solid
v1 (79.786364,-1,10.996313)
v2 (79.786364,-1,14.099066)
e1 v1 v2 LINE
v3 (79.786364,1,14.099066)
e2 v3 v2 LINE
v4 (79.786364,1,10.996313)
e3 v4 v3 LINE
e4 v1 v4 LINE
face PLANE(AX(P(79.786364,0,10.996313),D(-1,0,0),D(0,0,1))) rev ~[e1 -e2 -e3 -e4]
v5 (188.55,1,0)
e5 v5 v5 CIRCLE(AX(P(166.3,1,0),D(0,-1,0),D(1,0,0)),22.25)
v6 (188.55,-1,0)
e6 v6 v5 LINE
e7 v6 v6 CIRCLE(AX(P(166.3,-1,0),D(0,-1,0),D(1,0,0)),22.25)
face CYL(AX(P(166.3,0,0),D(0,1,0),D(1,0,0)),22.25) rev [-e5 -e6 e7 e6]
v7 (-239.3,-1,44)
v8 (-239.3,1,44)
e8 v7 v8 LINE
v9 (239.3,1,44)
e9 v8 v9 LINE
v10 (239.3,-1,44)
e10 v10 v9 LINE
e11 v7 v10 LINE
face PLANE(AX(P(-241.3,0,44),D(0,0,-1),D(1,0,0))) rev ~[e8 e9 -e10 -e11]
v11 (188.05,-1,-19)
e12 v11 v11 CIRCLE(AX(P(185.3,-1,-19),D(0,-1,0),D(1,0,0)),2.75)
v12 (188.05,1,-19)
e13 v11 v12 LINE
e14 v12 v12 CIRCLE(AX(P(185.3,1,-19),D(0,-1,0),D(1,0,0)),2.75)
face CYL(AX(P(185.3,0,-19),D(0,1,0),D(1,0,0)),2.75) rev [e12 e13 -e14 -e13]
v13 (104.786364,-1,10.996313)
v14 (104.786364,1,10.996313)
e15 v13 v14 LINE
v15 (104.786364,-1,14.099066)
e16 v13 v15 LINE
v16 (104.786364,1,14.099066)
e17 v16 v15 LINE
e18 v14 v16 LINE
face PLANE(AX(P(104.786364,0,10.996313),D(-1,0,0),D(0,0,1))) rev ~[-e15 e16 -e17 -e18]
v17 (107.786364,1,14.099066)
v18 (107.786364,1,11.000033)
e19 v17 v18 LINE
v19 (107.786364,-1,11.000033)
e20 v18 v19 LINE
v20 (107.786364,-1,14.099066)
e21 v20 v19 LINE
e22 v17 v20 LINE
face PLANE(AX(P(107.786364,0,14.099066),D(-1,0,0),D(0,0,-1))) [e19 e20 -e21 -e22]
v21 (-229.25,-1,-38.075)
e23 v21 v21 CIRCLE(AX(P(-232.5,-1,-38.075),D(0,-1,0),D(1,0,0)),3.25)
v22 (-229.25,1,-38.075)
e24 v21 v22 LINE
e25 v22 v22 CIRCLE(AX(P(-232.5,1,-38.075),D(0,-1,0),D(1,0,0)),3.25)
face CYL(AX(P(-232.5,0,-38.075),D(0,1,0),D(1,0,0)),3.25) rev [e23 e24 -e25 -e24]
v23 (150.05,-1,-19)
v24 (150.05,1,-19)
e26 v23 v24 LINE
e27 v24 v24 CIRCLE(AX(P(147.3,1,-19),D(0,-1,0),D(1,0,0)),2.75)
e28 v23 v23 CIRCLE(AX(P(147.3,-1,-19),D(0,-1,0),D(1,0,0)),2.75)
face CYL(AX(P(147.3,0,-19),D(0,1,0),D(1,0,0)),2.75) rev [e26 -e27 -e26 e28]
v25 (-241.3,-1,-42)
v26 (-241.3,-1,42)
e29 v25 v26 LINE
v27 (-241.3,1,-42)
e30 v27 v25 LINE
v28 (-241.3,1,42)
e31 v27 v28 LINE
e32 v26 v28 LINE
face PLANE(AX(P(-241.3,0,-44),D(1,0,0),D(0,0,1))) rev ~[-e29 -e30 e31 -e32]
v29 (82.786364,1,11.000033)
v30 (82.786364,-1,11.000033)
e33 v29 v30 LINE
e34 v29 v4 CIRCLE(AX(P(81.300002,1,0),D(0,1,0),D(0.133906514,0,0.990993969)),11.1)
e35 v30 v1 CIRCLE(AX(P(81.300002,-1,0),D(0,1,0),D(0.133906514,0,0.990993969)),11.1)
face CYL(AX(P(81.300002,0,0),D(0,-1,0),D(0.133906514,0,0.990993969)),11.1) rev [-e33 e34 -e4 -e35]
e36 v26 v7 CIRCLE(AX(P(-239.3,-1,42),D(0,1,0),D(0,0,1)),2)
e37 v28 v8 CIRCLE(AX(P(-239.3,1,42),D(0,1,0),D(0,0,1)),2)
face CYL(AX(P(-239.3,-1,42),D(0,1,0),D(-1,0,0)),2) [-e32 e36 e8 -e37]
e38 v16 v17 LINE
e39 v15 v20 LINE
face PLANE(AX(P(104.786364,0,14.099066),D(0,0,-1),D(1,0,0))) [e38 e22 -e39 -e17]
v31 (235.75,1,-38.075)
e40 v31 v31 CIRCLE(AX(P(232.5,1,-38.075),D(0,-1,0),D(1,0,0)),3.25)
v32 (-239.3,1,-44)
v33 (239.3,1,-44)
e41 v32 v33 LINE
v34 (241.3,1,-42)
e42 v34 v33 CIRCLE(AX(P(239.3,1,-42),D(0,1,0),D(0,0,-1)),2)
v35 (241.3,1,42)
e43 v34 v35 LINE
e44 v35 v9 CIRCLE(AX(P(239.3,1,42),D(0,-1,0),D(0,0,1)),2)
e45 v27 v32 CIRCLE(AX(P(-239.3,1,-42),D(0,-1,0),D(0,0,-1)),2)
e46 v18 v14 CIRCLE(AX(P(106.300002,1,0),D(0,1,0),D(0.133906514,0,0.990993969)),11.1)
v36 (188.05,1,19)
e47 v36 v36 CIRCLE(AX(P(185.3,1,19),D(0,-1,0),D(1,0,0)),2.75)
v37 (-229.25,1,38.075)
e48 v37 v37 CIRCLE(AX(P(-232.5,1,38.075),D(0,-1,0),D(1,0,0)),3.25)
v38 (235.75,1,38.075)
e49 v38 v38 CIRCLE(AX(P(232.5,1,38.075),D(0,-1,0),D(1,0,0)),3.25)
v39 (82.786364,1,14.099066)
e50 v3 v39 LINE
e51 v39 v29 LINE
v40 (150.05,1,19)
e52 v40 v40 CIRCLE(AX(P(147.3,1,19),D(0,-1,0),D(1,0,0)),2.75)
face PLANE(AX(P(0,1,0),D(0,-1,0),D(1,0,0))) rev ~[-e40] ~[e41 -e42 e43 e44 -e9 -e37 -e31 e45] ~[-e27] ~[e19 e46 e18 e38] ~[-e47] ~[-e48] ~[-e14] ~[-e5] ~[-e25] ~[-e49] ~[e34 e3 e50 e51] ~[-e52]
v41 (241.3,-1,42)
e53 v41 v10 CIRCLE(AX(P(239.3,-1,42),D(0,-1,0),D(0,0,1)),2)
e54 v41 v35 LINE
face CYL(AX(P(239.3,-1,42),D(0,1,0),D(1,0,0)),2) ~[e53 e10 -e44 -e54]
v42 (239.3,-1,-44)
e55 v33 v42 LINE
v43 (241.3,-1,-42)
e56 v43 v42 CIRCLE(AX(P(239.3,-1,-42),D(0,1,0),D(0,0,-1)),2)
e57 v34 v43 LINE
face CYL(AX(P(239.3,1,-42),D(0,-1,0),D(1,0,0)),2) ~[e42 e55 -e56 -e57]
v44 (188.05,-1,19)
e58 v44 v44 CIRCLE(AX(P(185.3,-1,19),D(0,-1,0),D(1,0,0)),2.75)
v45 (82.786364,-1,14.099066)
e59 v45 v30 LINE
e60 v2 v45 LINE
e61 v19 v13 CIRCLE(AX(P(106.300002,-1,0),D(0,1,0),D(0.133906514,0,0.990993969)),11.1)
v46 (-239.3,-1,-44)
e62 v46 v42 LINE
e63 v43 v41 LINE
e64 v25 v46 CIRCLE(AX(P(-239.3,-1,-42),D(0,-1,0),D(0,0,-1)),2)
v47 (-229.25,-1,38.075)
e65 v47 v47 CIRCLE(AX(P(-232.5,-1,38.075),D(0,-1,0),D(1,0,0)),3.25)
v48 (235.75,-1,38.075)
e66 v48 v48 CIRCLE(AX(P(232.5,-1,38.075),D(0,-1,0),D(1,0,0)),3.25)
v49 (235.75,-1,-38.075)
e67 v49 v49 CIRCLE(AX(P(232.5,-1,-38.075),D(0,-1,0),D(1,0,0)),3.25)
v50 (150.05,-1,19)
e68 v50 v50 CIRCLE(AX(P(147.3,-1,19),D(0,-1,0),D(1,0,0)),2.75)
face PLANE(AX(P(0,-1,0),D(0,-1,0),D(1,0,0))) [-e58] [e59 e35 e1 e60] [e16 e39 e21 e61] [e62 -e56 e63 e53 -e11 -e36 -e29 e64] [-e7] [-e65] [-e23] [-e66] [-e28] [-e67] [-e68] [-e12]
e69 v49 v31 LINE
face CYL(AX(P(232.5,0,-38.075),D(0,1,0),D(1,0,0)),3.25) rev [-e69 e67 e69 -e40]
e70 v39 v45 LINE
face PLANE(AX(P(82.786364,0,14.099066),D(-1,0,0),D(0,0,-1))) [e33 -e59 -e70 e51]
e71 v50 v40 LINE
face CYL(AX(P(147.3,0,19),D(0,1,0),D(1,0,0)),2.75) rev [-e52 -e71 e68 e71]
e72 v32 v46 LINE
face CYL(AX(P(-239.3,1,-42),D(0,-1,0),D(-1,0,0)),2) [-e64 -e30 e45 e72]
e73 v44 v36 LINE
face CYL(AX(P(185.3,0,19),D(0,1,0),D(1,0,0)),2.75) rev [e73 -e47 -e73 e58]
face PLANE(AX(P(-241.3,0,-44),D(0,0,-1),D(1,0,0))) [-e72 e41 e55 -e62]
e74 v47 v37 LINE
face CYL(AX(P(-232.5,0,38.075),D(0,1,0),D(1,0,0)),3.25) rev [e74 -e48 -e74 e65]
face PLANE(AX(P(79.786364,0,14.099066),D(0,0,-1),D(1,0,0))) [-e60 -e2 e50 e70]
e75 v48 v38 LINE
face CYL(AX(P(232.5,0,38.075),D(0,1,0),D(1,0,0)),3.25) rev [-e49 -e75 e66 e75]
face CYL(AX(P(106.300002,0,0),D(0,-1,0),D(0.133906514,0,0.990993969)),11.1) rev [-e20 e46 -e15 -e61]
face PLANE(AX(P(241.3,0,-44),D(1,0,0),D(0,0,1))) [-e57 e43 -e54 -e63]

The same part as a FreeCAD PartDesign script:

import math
import FreeCAD as App
import Part
import Sketcher

V = App.Vector


def edges_at(feature, points):
    """Names of the edges that pass closest to the given points."""
    edges = feature.Shape.Edges
    near = lambda p: min(range(len(edges)), key=lambda i: edges[i].distToShape(Part.Vertex(*p))[0])
    return sorted({f"Edge{near(p) + 1}" for p in points})


def add_polygon(sketch, points):
    """Adds a closed chain of lines whose ends are joined by coincident constraints."""
    first, n = sketch.GeometryCount, len(points)
    for a, b in zip(points, points[1:] + points[:1]):
        sketch.addGeometry(Part.LineSegment(App.Vector(*a, 0), App.Vector(*b, 0)), False)
    for i in range(n):
        sketch.addConstraint(Sketcher.Constraint("Coincident", first + i, 2, first + (i + 1) % n, 1))

doc = App.newDocument("Part")
params = doc.addObject("Spreadsheet::Sheet", "Params")
for row, (alias, value) in enumerate([
    ("sketch1_diameter", "6.5 mm"),
    ("sketch1_diameter2", "5.5 mm"),
    ("sketch1_diameter3", "44.5 mm"),
    ("sketch1_radius", "11.1 mm"),
    ("sketch1_width", "3 mm"),
    ("pad1_length", "2 mm"),
    ("fillet_radius", "2 mm"),
], start=1):
    params.set(f"A{row}", alias)
    params.set(f"B{row}", "=" + value)
    params.setAlias(f"B{row}", alias)

body = doc.addObject("PartDesign::Body", "Body")

# Sketch on XZ plane
sketch1 = doc.addObject("Sketcher::SketchObject", "Sketch")
body.addObject(sketch1)
sketch1.AttachmentSupport = (doc.XZ_Plane, [""])
sketch1.MapMode = "FlatFace"
add_polygon(sketch1, [(-241.3, 44), (-241.3, -44), (241.3, -44), (241.3, 44)])  # lines 0-3
sketch1.addGeometry(Part.Circle(V(-232.5, -38.1, 0), V(0, 0, 1), 3.2), False)  # 4
sketch1.addGeometry(Part.Circle(V(232.5, -38.1, 0), V(0, 0, 1), 3.2), False)  # 5
sketch1.addGeometry(Part.Circle(V(147.3, -19, 0), V(0, 0, 1), 2.8), False)  # 6
sketch1.addGeometry(Part.Circle(V(185.3, -19, 0), V(0, 0, 1), 2.8), False)  # 7
sketch1.addGeometry(Part.Circle(V(166.3, 0, 0), V(0, 0, 1), 22.2), False)  # 8
sketch1.addGeometry(Part.Circle(V(-232.5, 38.1, 0), V(0, 0, 1), 3.2), False)  # 9
sketch1.addGeometry(Part.LineSegment(V(82.8, 14.1, 0), V(82.8, 11, 0)), False)  # 10
sketch1.addGeometry(Part.ArcOfCircle(Part.Circle(V(81.3, 0, 0), V(0, 0, 1), 11.1), math.radians(98), math.radians(442)), False)  # 11
sketch1.addGeometry(Part.LineSegment(V(79.8, 11, 0), V(79.8, 14.1, 0)), False)  # 12
sketch1.addGeometry(Part.LineSegment(V(79.8, 14.1, 0), V(82.8, 14.1, 0)), False)  # 13
sketch1.addGeometry(Part.LineSegment(V(107.8, 14.1, 0), V(107.8, 11, 0)), False)  # 14
sketch1.addGeometry(Part.ArcOfCircle(Part.Circle(V(106.3, 0, 0), V(0, 0, 1), 11.1), math.radians(98), math.radians(442)), False)  # 15
sketch1.addGeometry(Part.LineSegment(V(104.8, 11, 0), V(104.8, 14.1, 0)), False)  # 16
sketch1.addGeometry(Part.LineSegment(V(104.8, 14.1, 0), V(107.8, 14.1, 0)), False)  # 17
sketch1.addGeometry(Part.Circle(V(147.3, 19, 0), V(0, 0, 1), 2.8), False)  # 18
sketch1.addGeometry(Part.Circle(V(185.3, 19, 0), V(0, 0, 1), 2.8), False)  # 19
sketch1.addGeometry(Part.Circle(V(232.5, 38.1, 0), V(0, 0, 1), 3.2), False)  # 20
sketch1.addConstraint([
    Sketcher.Constraint("Coincident", 10, 2, 11, 2),
    Sketcher.Constraint("Coincident", 11, 1, 12, 1),
    Sketcher.Constraint("Coincident", 12, 2, 13, 1),
    Sketcher.Constraint("Coincident", 13, 2, 10, 1),
    Sketcher.Constraint("Coincident", 14, 2, 15, 2),
    Sketcher.Constraint("Coincident", 15, 1, 16, 1),
    Sketcher.Constraint("Coincident", 16, 2, 17, 1),
    Sketcher.Constraint("Coincident", 17, 2, 14, 1),
    Sketcher.Constraint("Vertical", 0),
    Sketcher.Constraint("Horizontal", 1),
    Sketcher.Constraint("Vertical", 2),
    Sketcher.Constraint("Horizontal", 3),
    Sketcher.Constraint("Vertical", 10),
    Sketcher.Constraint("Vertical", 12),
    Sketcher.Constraint("Horizontal", 13),
    Sketcher.Constraint("Vertical", 14),
    Sketcher.Constraint("Vertical", 16),
    Sketcher.Constraint("Horizontal", 17),
    Sketcher.Constraint("Equal", 4, 5),
    Sketcher.Constraint("Equal", 6, 7),
    Sketcher.Constraint("Equal", 5, 9),
    Sketcher.Constraint("Equal", 11, 15),
    Sketcher.Constraint("Equal", 7, 18),
    Sketcher.Constraint("Equal", 18, 19),
    Sketcher.Constraint("Equal", 9, 20),
    Sketcher.Constraint("Symmetric", 5, 3, 9, 3, -1, 1),
    Sketcher.Constraint("Symmetric", 4, 3, 20, 3, -1, 1),
    Sketcher.Constraint("Symmetric", 0, 2, 2, 2, -1, 1),
    Sketcher.Constraint("Symmetric", 4, 3, 5, 3, -2),
    Sketcher.Constraint("Symmetric", 6, 3, 18, 3, -1),
    Sketcher.Constraint("Symmetric", 7, 3, 19, 3, -1),
    Sketcher.Constraint("PointOnObject", 8, 3, -1),
    Sketcher.Constraint("PointOnObject", 11, 3, -1),
    Sketcher.Constraint("PointOnObject", 15, 3, -1),
    Sketcher.Constraint("Horizontal", 6, 3, 7, 3),
    Sketcher.Constraint("Horizontal", 10, 2, 14, 2),
    Sketcher.Constraint("Horizontal", 11, 1, 15, 1),
    Sketcher.Constraint("Horizontal", 13, 2, 16, 2),
    Sketcher.Constraint("Diameter", 4, 6.5),
    Sketcher.Constraint("Diameter", 6, 5.5),
    Sketcher.Constraint("Diameter", 8, 44.5),
    Sketcher.Constraint("Radius", 11, 11.1),
    Sketcher.Constraint("DistanceX", 13, 1, 13, 2, 3.0),
    Sketcher.Constraint("DistanceY", 0, 2, 0, 1, 88.0),
    Sketcher.Constraint("DistanceX", 1, 1, 1, 2, 482.6),
    Sketcher.Constraint("DistanceY", 6, 3, -1, 1, 19.0),
    Sketcher.Constraint("DistanceX", 4, 3, 5, 3, 465.0),
    Sketcher.Constraint("DistanceX", 6, 3, 7, 3, 38.0),
    Sketcher.Constraint("DistanceX", 6, 3, 8, 3, 19.0),
    Sketcher.Constraint("DistanceX", 11, 3, 6, 3, 65.999998),
    Sketcher.Constraint("DistanceX", 11, 3, 15, 3, 25.0),
    Sketcher.Constraint("DistanceX", 7, 3, 1, 2, 56.0),
    Sketcher.Constraint("DistanceY", 4, 3, 9, 3, 76.15),
    Sketcher.Constraint("DistanceY", 10, 2, 10, 1, 3.099033),
    Sketcher.Constraint("DistanceY", 12, 1, 12, 2, 3.102753),
])
sketch1.setExpression("Constraints[42]", "Params.sketch1_diameter")
sketch1.setExpression("Constraints[43]", "Params.sketch1_diameter2")
sketch1.setExpression("Constraints[44]", "Params.sketch1_diameter3")
sketch1.setExpression("Constraints[45]", "Params.sketch1_radius")
sketch1.setExpression("Constraints[46]", "Params.sketch1_width")
pad1 = doc.addObject("PartDesign::Pad", "Pad")
body.addObject(pad1)
pad1.Profile = sketch1
pad1.setExpression("Length", "Params.pad1_length")
pad1.Midplane = True
doc.recompute()

fillet = doc.addObject("PartDesign::Fillet", "Fillet")
body.addObject(fillet)
fillet.Base = (pad1, edges_at(pad1, [
    (241.3, 0, 44),
    (241.3, 0, -44),
    (-241.3, 0, -44),
    (-241.3, 0, 44),
]))
fillet.setExpression("Radius", "Params.fillet_radius")

doc.recompute()
